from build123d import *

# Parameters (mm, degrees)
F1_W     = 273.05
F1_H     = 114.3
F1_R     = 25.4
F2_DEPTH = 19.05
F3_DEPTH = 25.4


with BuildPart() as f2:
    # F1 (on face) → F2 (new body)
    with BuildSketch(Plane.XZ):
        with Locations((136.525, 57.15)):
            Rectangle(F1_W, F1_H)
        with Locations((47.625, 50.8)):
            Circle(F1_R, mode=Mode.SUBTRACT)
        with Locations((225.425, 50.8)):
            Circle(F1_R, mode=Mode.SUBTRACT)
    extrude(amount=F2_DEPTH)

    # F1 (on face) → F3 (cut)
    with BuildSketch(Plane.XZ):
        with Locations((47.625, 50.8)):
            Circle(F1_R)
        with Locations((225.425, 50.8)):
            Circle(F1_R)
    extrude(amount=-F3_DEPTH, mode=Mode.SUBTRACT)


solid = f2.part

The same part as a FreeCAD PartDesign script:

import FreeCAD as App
import Part
import Sketcher
from FreeCAD import Vector
Q = App.Units.Quantity

doc = App.newDocument("Part")
body = doc.addObject("PartDesign::Body", "Body")

# Sketch on XZ plane
sketch1 = body.newObject("Sketcher::SketchObject", "Sketch")
sketch1.AttachmentSupport = (doc.getObject("XZ_Plane"), [""])
sketch1.MapMode = "FlatFace"
sketch1.addGeometry(Part.LineSegment(Vector(0, 114, 0), Vector(0, 0, 0)), False)
sketch1.addGeometry(Part.LineSegment(Vector(0, 0, 0), Vector(273, 0, 0)), False)
sketch1.addGeometry(Part.LineSegment(Vector(273, 0, 0), Vector(273, 114, 0)), False)
sketch1.addGeometry(Part.LineSegment(Vector(273, 114, 0), Vector(0, 114, 0)), False)
sketch1.addGeometry(Part.Circle(Vector(48, 51, 0), Vector(0, 0, 1), 25), False)
sketch1.addGeometry(Part.Circle(Vector(225, 51, 0), Vector(0, 0, 1), 25), False)
sketch1.addConstraint(Sketcher.Constraint("Coincident", 0, 2, 1, 1))
sketch1.addConstraint(Sketcher.Constraint("Coincident", 1, 2, 2, 1))
sketch1.addConstraint(Sketcher.Constraint("Coincident", 2, 2, 3, 1))
sketch1.addConstraint(Sketcher.Constraint("Coincident", 3, 2, 0, 1))
sketch1.addConstraint(Sketcher.Constraint("Vertical", 0))
sketch1.addConstraint(Sketcher.Constraint("Horizontal", 1))
sketch1.addConstraint(Sketcher.Constraint("Vertical", 2))
sketch1.addConstraint(Sketcher.Constraint("Horizontal", 3))
sketch1.addConstraint(Sketcher.Constraint("Coincident", 0, 2, -1, 1))
sketch1.addConstraint(Sketcher.Constraint("Equal", 4, 5))
sketch1.addConstraint(Sketcher.Constraint("Horizontal", 4, 3, 5, 3))
sketch1.addConstraint(Sketcher.Constraint("Diameter", 4, Q("2 in")))
sketch1.addConstraint(Sketcher.Constraint("DistanceY", 0, 2, 0, 1, Q("4.5 in")))
sketch1.addConstraint(Sketcher.Constraint("DistanceY", -1, 1, 4, 3, Q("2 in")))
sketch1.addConstraint(Sketcher.Constraint("DistanceX", 4, 3, 5, 3, Q("7 in")))
sketch1.addConstraint(Sketcher.Constraint("DistanceX", 1, 1, 1, 2, Q("10.75 in")))
sketch1.addConstraint(Sketcher.Constraint("DistanceX", -1, 1, 4, 3, Q("1.875 in")))
pad1 = body.newObject("PartDesign::Pad", "Pad")
pad1.Profile = sketch1
pad1.Length = Q("0.75 in")

# Sketch on XZ plane
sketch2 = body.newObject("Sketcher::SketchObject", "Sketch001")
sketch2.AttachmentSupport = (doc.getObject("XZ_Plane"), [""])
sketch2.MapMode = "FlatFace"
sketch2.addGeometry(Part.Circle(Vector(48, 51, 0), Vector(0, 0, 1), 25), False)
sketch2.addGeometry(Part.Circle(Vector(225, 51, 0), Vector(0, 0, 1), 25), False)
sketch2.addConstraint(Sketcher.Constraint("Equal", 0, 1))
sketch2.addConstraint(Sketcher.Constraint("Horizontal", 0, 3, 1, 3))
sketch2.addConstraint(Sketcher.Constraint("Diameter", 0, Q("2 in")))
sketch2.addConstraint(Sketcher.Constraint("DistanceY", -1, 1, 0, 3, Q("2 in")))
sketch2.addConstraint(Sketcher.Constraint("DistanceX", 0, 3, 1, 3, Q("7 in")))
sketch2.addConstraint(Sketcher.Constraint("DistanceX", -1, 1, 0, 3, Q("1.875 in")))
pocket1 = body.newObject("PartDesign::Pocket", "Pocket")
pocket1.Profile = sketch2
pocket1.Length = Q("1 in")

doc.recompute()
